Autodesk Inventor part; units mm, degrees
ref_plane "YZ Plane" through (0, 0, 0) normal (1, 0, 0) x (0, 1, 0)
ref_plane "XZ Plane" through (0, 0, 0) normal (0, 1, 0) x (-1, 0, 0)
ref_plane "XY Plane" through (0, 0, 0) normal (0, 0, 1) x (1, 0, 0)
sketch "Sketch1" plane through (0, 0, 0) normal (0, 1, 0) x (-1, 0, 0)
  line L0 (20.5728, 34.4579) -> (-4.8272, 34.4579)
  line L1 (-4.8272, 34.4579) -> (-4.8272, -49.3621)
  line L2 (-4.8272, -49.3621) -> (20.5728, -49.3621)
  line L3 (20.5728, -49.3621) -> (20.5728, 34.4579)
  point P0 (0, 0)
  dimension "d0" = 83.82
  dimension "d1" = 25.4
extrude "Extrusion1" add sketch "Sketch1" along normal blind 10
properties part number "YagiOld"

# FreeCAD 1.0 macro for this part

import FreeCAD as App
import Part
import Sketcher

V = App.Vector
Q = App.Units.Quantity


def add_polygon(sketch, points):
    """Adds a closed chain of lines whose ends are joined by coincident constraints."""
    first, n = sketch.GeometryCount, len(points)
    for a, b in zip(points, points[1:] + points[:1]):
        sketch.addGeometry(Part.LineSegment(App.Vector(*a, 0), App.Vector(*b, 0)), False)
    for i in range(n):
        sketch.addConstraint(Sketcher.Constraint("Coincident", first + i, 2, first + (i + 1) % n, 1))

doc = App.newDocument("Part")
body = doc.addObject("PartDesign::Body", "Body")

# Sketch on XZ plane
sketch1 = body.newObject("Sketcher::SketchObject", "Sketch")
sketch1.AttachmentSupport = (doc.getObject("XZ_Plane"), [""])
sketch1.MapMode = "FlatFace"
add_polygon(sketch1, [(-21, -49), (-21, 34), (5, 34), (5, -49)])  # lines 0-3
sketch1.addConstraint(Sketcher.Constraint("Vertical", 0))
sketch1.addConstraint(Sketcher.Constraint("Horizontal", 1))
sketch1.addConstraint(Sketcher.Constraint("Vertical", 2))
sketch1.addConstraint(Sketcher.Constraint("Horizontal", 3))
sketch1.addConstraint(Sketcher.Constraint("DistanceX", 1, 1, 1, 2, Q("1 in")))
sketch1.addConstraint(Sketcher.Constraint("DistanceY", 0, 1, 0, 2, Q("3.3 in")))
sketch1.addConstraint(Sketcher.Constraint("DistanceY", -1, 1, 0, 2, Q("1.3566 in")))
sketch1.addConstraint(Sketcher.Constraint("DistanceX", 0, 2, -1, 1, Q("20.5728 mm")))
pad1 = body.newObject("PartDesign::Pad", "Pad")
pad1.Profile = sketch1
pad1.Length = Q("0.3937008 in")
pad1.Reversed = True

doc.recompute()
